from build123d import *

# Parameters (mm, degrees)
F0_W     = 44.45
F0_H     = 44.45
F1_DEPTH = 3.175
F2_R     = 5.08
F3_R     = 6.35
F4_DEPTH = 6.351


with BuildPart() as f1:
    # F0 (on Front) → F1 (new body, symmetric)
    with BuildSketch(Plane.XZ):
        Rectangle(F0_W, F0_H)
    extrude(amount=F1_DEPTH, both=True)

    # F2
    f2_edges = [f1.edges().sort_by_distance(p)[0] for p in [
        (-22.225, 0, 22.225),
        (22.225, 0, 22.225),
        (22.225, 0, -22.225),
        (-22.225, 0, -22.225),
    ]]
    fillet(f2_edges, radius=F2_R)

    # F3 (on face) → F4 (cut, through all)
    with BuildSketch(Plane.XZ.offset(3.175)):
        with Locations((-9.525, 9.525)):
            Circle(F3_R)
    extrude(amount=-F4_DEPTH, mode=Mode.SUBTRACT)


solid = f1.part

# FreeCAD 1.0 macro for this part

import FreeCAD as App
import Part
import Sketcher
Q = App.Units.Quantity


def edges_at(feature, points):
    """Names of the edges that pass closest to the given points."""
    edges = feature.Shape.Edges
    near = lambda p: min(range(len(edges)), key=lambda i: edges[i].distToShape(Part.Vertex(*p))[0])
    return sorted({f"Edge{near(p) + 1}" for p in points})

doc = App.newDocument("Part")
params = doc.addObject("Spreadsheet::Sheet", "Params")
for row, (alias, value) in enumerate([
    ("sketch1_width", "1.75 in"),
    ("pad1_length", "0.25 in"),
    ("fillet_radius", "0.2 in"),
    ("sketch2_diameter", "0.5 in"),
], start=1):
    params.set(f"A{row}", alias)
    params.set(f"B{row}", "=" + value)
    params.setAlias(f"B{row}", alias)

body = doc.addObject("PartDesign::Body", "Body")

sketch1 = body.newObject("Sketcher::SketchObject", "Sketch")
sketch1.AttachmentSupport = (doc.getObject("XZ_Plane"), [""])
sketch1.MapMode = "FlatFace"
sketch1.addGeometry(Part.LineSegment(App.Vector(-22, 22, 0), App.Vector(-22, -22, 0)), False)
sketch1.addGeometry(Part.LineSegment(App.Vector(-22, -22, 0), App.Vector(22, -22, 0)), False)
sketch1.addGeometry(Part.LineSegment(App.Vector(22, -22, 0), App.Vector(22, 22, 0)), False)
sketch1.addGeometry(Part.LineSegment(App.Vector(22, 22, 0), App.Vector(-22, 22, 0)), False)
sketch1.addConstraint(Sketcher.Constraint("Coincident", 0, 2, 1, 1))
sketch1.addConstraint(Sketcher.Constraint("Coincident", 1, 2, 2, 1))
sketch1.addConstraint(Sketcher.Constraint("Coincident", 2, 2, 3, 1))
sketch1.addConstraint(Sketcher.Constraint("Coincident", 3, 2, 0, 1))
sketch1.addConstraint(Sketcher.Constraint("Vertical", 0))
sketch1.addConstraint(Sketcher.Constraint("Horizontal", 1))
sketch1.addConstraint(Sketcher.Constraint("Vertical", 2))
sketch1.addConstraint(Sketcher.Constraint("Horizontal", 3))
sketch1.addConstraint(Sketcher.Constraint("Symmetric", 0, 2, 2, 2, -1, 1))
sketch1.addConstraint(Sketcher.Constraint("Equal", 3, 0))
sketch1.addConstraint(Sketcher.Constraint("DistanceX", 1, 1, 1, 2, Q("1.75 in")))
sketch1.setExpression("Constraints[10]", "Params.sketch1_width")
pad1 = body.newObject("PartDesign::Pad", "Pad")
pad1.Profile = sketch1
pad1.setExpression("Length", "Params.pad1_length")
pad1.Midplane = True
doc.recompute()

fillet = body.newObject("PartDesign::Fillet", "Fillet")
fillet.Base = (pad1, edges_at(pad1, [
    (-22.225, 0, 22.225),
    (22.225, 0, 22.225),
    (22.225, 0, -22.225),
    (-22.225, 0, -22.225),
]))
fillet.setExpression("Radius", "Params.fillet_radius")

sketch2 = body.newObject("Sketcher::SketchObject", "Sketch001")
sketch2.AttachmentSupport = (doc.getObject("XZ_Plane"), [""])
sketch2.MapMode = "FlatFace"
sketch2.AttachmentOffset = App.Placement(App.Vector(0, 0, 0.125 * 25.4), App.Rotation())
sketch2.addGeometry(Part.Circle(App.Vector(-10, 10, 0), App.Vector(0, 0, 1), 6), False)
sketch2.addConstraint(Sketcher.Constraint("Diameter", 0, Q("0.5 in")))
sketch2.addConstraint(Sketcher.Constraint("DistanceX", 0, 3, -1, 1, Q("0.375 in")))
sketch2.addConstraint(Sketcher.Constraint("DistanceY", -1, 1, 0, 3, Q("0.375 in")))
sketch2.setExpression("Constraints[0]", "Params.sketch2_diameter")
pocket1 = body.newObject("PartDesign::Pocket", "Pocket")
pocket1.Profile = sketch2
pocket1.Type = "ThroughAll"

doc.recompute()
